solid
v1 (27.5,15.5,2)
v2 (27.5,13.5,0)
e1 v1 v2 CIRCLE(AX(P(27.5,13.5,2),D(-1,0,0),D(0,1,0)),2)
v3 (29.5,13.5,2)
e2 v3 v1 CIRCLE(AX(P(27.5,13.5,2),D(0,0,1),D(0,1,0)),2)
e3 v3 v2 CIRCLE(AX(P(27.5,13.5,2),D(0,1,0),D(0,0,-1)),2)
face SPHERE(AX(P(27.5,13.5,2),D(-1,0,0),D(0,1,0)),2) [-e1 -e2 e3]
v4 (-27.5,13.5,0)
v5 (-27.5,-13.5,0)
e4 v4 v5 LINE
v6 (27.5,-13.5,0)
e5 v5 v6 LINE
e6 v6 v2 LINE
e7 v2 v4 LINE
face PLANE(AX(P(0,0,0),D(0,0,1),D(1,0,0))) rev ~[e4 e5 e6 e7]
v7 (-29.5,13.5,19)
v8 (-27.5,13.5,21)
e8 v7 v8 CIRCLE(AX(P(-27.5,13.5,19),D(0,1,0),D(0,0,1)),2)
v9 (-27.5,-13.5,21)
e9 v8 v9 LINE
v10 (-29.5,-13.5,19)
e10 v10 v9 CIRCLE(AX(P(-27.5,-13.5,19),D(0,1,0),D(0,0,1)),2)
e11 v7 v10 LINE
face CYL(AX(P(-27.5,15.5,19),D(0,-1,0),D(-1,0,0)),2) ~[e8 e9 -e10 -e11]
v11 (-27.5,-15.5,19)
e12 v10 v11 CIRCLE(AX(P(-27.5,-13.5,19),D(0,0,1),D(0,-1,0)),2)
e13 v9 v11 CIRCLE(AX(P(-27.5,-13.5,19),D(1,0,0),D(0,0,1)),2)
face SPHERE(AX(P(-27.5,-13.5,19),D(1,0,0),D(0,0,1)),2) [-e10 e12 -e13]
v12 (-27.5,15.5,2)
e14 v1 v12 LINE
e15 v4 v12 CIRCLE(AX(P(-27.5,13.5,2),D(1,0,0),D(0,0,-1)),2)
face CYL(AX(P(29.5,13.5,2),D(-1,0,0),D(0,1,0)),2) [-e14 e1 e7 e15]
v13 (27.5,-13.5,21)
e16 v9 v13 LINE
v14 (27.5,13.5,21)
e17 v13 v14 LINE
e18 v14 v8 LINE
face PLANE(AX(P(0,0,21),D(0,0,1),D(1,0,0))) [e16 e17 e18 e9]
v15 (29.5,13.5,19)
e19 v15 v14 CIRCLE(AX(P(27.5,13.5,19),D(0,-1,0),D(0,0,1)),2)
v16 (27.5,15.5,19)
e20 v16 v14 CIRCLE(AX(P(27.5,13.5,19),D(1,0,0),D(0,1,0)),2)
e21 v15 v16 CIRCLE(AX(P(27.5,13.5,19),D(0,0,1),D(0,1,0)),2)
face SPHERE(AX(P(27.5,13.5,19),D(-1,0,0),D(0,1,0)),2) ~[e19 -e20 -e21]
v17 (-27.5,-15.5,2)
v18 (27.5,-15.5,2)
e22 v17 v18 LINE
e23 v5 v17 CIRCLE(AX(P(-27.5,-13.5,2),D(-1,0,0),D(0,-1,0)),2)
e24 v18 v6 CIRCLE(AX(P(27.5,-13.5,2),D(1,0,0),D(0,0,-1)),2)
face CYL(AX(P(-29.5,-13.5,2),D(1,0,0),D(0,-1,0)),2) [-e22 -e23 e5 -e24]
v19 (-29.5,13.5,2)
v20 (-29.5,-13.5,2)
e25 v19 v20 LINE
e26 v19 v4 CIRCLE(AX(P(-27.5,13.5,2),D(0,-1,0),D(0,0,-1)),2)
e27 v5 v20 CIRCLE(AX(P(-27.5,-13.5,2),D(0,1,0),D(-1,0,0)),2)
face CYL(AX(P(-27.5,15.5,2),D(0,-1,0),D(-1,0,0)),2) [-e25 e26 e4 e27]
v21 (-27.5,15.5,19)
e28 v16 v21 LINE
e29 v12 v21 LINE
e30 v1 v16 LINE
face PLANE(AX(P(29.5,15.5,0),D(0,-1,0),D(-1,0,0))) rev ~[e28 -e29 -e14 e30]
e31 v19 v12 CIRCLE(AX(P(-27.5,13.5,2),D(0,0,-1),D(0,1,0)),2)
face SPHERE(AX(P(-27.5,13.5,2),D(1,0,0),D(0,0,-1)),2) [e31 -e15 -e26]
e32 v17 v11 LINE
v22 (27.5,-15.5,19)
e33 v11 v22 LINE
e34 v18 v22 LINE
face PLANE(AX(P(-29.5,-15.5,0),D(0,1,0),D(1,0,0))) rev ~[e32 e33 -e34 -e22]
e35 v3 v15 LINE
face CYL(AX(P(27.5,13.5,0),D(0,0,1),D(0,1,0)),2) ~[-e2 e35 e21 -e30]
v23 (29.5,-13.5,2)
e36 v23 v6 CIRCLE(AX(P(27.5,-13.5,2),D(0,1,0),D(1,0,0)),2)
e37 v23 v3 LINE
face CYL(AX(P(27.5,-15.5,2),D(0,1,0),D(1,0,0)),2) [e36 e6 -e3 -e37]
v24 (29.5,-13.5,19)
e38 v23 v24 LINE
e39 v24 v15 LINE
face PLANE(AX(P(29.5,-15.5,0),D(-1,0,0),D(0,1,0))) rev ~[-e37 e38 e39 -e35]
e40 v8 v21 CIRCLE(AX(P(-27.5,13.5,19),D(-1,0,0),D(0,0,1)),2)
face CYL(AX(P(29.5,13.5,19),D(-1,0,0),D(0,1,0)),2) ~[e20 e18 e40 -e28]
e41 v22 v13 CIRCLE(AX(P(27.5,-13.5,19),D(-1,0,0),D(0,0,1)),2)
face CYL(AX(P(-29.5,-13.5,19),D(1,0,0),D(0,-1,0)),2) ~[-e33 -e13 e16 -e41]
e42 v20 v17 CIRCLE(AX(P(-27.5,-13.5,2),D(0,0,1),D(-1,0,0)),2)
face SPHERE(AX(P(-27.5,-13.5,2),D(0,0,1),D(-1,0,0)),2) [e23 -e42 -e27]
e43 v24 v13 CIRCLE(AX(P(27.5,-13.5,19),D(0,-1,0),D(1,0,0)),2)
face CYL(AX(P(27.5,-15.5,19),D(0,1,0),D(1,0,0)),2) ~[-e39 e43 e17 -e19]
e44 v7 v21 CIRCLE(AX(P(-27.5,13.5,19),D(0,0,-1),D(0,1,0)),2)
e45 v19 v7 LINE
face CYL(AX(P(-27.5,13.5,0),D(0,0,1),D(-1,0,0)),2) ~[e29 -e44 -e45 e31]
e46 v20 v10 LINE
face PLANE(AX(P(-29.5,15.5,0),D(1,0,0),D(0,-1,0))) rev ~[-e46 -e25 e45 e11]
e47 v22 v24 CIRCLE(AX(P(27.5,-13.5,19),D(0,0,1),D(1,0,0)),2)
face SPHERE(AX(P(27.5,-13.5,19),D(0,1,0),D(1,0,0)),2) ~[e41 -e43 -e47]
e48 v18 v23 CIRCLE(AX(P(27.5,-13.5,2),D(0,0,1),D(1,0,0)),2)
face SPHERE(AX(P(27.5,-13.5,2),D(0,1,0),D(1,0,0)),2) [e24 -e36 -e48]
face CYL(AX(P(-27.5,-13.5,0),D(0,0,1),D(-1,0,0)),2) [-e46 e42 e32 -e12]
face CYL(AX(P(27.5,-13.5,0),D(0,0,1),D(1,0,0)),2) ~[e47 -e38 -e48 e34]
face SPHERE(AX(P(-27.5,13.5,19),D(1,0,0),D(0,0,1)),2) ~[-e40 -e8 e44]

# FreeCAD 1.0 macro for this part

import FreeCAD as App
import Part
import Sketcher
Q = App.Units.Quantity


def add_polygon(sketch, points):
    """Adds a closed chain of lines whose ends are joined by coincident constraints."""
    first, n = sketch.GeometryCount, len(points)
    for a, b in zip(points, points[1:] + points[:1]):
        sketch.addGeometry(Part.LineSegment(App.Vector(*a, 0), App.Vector(*b, 0)), False)
    for i in range(n):
        sketch.addConstraint(Sketcher.Constraint("Coincident", first + i, 2, first + (i + 1) % n, 1))

doc = App.newDocument("Part")
body = doc.addObject("PartDesign::Body", "Body")

sketch1 = body.newObject("Sketcher::SketchObject", "Sketch")
sketch1.AttachmentSupport = (doc.getObject("XY_Plane"), [""])
sketch1.MapMode = "FlatFace"
add_polygon(sketch1, [(-30, 16), (-30, -16), (30, -16), (30, 16)])
sketch1.addConstraint([
    Sketcher.Constraint("Vertical", 0),
    Sketcher.Constraint("Horizontal", 1),
    Sketcher.Constraint("Vertical", 2),
    Sketcher.Constraint("Horizontal", 3),
    Sketcher.Constraint("Symmetric", 0, 2, 2, 2, -1, 1),
    Sketcher.Constraint("DistanceX", 1, 1, 1, 2, Q("59 mm")),
    Sketcher.Constraint("DistanceY", 0, 2, 0, 1, Q("31 mm")),
])
pad1 = body.newObject("PartDesign::Pad", "Pad")
pad1.Profile = sketch1
pad1.Length = 21
doc.recompute()

fillet = body.newObject("PartDesign::Fillet", "Fillet")
fillet.Base = (pad1, ["Edge1"])
fillet.UseAllEdges = True
fillet.Radius = 2

doc.recompute()
